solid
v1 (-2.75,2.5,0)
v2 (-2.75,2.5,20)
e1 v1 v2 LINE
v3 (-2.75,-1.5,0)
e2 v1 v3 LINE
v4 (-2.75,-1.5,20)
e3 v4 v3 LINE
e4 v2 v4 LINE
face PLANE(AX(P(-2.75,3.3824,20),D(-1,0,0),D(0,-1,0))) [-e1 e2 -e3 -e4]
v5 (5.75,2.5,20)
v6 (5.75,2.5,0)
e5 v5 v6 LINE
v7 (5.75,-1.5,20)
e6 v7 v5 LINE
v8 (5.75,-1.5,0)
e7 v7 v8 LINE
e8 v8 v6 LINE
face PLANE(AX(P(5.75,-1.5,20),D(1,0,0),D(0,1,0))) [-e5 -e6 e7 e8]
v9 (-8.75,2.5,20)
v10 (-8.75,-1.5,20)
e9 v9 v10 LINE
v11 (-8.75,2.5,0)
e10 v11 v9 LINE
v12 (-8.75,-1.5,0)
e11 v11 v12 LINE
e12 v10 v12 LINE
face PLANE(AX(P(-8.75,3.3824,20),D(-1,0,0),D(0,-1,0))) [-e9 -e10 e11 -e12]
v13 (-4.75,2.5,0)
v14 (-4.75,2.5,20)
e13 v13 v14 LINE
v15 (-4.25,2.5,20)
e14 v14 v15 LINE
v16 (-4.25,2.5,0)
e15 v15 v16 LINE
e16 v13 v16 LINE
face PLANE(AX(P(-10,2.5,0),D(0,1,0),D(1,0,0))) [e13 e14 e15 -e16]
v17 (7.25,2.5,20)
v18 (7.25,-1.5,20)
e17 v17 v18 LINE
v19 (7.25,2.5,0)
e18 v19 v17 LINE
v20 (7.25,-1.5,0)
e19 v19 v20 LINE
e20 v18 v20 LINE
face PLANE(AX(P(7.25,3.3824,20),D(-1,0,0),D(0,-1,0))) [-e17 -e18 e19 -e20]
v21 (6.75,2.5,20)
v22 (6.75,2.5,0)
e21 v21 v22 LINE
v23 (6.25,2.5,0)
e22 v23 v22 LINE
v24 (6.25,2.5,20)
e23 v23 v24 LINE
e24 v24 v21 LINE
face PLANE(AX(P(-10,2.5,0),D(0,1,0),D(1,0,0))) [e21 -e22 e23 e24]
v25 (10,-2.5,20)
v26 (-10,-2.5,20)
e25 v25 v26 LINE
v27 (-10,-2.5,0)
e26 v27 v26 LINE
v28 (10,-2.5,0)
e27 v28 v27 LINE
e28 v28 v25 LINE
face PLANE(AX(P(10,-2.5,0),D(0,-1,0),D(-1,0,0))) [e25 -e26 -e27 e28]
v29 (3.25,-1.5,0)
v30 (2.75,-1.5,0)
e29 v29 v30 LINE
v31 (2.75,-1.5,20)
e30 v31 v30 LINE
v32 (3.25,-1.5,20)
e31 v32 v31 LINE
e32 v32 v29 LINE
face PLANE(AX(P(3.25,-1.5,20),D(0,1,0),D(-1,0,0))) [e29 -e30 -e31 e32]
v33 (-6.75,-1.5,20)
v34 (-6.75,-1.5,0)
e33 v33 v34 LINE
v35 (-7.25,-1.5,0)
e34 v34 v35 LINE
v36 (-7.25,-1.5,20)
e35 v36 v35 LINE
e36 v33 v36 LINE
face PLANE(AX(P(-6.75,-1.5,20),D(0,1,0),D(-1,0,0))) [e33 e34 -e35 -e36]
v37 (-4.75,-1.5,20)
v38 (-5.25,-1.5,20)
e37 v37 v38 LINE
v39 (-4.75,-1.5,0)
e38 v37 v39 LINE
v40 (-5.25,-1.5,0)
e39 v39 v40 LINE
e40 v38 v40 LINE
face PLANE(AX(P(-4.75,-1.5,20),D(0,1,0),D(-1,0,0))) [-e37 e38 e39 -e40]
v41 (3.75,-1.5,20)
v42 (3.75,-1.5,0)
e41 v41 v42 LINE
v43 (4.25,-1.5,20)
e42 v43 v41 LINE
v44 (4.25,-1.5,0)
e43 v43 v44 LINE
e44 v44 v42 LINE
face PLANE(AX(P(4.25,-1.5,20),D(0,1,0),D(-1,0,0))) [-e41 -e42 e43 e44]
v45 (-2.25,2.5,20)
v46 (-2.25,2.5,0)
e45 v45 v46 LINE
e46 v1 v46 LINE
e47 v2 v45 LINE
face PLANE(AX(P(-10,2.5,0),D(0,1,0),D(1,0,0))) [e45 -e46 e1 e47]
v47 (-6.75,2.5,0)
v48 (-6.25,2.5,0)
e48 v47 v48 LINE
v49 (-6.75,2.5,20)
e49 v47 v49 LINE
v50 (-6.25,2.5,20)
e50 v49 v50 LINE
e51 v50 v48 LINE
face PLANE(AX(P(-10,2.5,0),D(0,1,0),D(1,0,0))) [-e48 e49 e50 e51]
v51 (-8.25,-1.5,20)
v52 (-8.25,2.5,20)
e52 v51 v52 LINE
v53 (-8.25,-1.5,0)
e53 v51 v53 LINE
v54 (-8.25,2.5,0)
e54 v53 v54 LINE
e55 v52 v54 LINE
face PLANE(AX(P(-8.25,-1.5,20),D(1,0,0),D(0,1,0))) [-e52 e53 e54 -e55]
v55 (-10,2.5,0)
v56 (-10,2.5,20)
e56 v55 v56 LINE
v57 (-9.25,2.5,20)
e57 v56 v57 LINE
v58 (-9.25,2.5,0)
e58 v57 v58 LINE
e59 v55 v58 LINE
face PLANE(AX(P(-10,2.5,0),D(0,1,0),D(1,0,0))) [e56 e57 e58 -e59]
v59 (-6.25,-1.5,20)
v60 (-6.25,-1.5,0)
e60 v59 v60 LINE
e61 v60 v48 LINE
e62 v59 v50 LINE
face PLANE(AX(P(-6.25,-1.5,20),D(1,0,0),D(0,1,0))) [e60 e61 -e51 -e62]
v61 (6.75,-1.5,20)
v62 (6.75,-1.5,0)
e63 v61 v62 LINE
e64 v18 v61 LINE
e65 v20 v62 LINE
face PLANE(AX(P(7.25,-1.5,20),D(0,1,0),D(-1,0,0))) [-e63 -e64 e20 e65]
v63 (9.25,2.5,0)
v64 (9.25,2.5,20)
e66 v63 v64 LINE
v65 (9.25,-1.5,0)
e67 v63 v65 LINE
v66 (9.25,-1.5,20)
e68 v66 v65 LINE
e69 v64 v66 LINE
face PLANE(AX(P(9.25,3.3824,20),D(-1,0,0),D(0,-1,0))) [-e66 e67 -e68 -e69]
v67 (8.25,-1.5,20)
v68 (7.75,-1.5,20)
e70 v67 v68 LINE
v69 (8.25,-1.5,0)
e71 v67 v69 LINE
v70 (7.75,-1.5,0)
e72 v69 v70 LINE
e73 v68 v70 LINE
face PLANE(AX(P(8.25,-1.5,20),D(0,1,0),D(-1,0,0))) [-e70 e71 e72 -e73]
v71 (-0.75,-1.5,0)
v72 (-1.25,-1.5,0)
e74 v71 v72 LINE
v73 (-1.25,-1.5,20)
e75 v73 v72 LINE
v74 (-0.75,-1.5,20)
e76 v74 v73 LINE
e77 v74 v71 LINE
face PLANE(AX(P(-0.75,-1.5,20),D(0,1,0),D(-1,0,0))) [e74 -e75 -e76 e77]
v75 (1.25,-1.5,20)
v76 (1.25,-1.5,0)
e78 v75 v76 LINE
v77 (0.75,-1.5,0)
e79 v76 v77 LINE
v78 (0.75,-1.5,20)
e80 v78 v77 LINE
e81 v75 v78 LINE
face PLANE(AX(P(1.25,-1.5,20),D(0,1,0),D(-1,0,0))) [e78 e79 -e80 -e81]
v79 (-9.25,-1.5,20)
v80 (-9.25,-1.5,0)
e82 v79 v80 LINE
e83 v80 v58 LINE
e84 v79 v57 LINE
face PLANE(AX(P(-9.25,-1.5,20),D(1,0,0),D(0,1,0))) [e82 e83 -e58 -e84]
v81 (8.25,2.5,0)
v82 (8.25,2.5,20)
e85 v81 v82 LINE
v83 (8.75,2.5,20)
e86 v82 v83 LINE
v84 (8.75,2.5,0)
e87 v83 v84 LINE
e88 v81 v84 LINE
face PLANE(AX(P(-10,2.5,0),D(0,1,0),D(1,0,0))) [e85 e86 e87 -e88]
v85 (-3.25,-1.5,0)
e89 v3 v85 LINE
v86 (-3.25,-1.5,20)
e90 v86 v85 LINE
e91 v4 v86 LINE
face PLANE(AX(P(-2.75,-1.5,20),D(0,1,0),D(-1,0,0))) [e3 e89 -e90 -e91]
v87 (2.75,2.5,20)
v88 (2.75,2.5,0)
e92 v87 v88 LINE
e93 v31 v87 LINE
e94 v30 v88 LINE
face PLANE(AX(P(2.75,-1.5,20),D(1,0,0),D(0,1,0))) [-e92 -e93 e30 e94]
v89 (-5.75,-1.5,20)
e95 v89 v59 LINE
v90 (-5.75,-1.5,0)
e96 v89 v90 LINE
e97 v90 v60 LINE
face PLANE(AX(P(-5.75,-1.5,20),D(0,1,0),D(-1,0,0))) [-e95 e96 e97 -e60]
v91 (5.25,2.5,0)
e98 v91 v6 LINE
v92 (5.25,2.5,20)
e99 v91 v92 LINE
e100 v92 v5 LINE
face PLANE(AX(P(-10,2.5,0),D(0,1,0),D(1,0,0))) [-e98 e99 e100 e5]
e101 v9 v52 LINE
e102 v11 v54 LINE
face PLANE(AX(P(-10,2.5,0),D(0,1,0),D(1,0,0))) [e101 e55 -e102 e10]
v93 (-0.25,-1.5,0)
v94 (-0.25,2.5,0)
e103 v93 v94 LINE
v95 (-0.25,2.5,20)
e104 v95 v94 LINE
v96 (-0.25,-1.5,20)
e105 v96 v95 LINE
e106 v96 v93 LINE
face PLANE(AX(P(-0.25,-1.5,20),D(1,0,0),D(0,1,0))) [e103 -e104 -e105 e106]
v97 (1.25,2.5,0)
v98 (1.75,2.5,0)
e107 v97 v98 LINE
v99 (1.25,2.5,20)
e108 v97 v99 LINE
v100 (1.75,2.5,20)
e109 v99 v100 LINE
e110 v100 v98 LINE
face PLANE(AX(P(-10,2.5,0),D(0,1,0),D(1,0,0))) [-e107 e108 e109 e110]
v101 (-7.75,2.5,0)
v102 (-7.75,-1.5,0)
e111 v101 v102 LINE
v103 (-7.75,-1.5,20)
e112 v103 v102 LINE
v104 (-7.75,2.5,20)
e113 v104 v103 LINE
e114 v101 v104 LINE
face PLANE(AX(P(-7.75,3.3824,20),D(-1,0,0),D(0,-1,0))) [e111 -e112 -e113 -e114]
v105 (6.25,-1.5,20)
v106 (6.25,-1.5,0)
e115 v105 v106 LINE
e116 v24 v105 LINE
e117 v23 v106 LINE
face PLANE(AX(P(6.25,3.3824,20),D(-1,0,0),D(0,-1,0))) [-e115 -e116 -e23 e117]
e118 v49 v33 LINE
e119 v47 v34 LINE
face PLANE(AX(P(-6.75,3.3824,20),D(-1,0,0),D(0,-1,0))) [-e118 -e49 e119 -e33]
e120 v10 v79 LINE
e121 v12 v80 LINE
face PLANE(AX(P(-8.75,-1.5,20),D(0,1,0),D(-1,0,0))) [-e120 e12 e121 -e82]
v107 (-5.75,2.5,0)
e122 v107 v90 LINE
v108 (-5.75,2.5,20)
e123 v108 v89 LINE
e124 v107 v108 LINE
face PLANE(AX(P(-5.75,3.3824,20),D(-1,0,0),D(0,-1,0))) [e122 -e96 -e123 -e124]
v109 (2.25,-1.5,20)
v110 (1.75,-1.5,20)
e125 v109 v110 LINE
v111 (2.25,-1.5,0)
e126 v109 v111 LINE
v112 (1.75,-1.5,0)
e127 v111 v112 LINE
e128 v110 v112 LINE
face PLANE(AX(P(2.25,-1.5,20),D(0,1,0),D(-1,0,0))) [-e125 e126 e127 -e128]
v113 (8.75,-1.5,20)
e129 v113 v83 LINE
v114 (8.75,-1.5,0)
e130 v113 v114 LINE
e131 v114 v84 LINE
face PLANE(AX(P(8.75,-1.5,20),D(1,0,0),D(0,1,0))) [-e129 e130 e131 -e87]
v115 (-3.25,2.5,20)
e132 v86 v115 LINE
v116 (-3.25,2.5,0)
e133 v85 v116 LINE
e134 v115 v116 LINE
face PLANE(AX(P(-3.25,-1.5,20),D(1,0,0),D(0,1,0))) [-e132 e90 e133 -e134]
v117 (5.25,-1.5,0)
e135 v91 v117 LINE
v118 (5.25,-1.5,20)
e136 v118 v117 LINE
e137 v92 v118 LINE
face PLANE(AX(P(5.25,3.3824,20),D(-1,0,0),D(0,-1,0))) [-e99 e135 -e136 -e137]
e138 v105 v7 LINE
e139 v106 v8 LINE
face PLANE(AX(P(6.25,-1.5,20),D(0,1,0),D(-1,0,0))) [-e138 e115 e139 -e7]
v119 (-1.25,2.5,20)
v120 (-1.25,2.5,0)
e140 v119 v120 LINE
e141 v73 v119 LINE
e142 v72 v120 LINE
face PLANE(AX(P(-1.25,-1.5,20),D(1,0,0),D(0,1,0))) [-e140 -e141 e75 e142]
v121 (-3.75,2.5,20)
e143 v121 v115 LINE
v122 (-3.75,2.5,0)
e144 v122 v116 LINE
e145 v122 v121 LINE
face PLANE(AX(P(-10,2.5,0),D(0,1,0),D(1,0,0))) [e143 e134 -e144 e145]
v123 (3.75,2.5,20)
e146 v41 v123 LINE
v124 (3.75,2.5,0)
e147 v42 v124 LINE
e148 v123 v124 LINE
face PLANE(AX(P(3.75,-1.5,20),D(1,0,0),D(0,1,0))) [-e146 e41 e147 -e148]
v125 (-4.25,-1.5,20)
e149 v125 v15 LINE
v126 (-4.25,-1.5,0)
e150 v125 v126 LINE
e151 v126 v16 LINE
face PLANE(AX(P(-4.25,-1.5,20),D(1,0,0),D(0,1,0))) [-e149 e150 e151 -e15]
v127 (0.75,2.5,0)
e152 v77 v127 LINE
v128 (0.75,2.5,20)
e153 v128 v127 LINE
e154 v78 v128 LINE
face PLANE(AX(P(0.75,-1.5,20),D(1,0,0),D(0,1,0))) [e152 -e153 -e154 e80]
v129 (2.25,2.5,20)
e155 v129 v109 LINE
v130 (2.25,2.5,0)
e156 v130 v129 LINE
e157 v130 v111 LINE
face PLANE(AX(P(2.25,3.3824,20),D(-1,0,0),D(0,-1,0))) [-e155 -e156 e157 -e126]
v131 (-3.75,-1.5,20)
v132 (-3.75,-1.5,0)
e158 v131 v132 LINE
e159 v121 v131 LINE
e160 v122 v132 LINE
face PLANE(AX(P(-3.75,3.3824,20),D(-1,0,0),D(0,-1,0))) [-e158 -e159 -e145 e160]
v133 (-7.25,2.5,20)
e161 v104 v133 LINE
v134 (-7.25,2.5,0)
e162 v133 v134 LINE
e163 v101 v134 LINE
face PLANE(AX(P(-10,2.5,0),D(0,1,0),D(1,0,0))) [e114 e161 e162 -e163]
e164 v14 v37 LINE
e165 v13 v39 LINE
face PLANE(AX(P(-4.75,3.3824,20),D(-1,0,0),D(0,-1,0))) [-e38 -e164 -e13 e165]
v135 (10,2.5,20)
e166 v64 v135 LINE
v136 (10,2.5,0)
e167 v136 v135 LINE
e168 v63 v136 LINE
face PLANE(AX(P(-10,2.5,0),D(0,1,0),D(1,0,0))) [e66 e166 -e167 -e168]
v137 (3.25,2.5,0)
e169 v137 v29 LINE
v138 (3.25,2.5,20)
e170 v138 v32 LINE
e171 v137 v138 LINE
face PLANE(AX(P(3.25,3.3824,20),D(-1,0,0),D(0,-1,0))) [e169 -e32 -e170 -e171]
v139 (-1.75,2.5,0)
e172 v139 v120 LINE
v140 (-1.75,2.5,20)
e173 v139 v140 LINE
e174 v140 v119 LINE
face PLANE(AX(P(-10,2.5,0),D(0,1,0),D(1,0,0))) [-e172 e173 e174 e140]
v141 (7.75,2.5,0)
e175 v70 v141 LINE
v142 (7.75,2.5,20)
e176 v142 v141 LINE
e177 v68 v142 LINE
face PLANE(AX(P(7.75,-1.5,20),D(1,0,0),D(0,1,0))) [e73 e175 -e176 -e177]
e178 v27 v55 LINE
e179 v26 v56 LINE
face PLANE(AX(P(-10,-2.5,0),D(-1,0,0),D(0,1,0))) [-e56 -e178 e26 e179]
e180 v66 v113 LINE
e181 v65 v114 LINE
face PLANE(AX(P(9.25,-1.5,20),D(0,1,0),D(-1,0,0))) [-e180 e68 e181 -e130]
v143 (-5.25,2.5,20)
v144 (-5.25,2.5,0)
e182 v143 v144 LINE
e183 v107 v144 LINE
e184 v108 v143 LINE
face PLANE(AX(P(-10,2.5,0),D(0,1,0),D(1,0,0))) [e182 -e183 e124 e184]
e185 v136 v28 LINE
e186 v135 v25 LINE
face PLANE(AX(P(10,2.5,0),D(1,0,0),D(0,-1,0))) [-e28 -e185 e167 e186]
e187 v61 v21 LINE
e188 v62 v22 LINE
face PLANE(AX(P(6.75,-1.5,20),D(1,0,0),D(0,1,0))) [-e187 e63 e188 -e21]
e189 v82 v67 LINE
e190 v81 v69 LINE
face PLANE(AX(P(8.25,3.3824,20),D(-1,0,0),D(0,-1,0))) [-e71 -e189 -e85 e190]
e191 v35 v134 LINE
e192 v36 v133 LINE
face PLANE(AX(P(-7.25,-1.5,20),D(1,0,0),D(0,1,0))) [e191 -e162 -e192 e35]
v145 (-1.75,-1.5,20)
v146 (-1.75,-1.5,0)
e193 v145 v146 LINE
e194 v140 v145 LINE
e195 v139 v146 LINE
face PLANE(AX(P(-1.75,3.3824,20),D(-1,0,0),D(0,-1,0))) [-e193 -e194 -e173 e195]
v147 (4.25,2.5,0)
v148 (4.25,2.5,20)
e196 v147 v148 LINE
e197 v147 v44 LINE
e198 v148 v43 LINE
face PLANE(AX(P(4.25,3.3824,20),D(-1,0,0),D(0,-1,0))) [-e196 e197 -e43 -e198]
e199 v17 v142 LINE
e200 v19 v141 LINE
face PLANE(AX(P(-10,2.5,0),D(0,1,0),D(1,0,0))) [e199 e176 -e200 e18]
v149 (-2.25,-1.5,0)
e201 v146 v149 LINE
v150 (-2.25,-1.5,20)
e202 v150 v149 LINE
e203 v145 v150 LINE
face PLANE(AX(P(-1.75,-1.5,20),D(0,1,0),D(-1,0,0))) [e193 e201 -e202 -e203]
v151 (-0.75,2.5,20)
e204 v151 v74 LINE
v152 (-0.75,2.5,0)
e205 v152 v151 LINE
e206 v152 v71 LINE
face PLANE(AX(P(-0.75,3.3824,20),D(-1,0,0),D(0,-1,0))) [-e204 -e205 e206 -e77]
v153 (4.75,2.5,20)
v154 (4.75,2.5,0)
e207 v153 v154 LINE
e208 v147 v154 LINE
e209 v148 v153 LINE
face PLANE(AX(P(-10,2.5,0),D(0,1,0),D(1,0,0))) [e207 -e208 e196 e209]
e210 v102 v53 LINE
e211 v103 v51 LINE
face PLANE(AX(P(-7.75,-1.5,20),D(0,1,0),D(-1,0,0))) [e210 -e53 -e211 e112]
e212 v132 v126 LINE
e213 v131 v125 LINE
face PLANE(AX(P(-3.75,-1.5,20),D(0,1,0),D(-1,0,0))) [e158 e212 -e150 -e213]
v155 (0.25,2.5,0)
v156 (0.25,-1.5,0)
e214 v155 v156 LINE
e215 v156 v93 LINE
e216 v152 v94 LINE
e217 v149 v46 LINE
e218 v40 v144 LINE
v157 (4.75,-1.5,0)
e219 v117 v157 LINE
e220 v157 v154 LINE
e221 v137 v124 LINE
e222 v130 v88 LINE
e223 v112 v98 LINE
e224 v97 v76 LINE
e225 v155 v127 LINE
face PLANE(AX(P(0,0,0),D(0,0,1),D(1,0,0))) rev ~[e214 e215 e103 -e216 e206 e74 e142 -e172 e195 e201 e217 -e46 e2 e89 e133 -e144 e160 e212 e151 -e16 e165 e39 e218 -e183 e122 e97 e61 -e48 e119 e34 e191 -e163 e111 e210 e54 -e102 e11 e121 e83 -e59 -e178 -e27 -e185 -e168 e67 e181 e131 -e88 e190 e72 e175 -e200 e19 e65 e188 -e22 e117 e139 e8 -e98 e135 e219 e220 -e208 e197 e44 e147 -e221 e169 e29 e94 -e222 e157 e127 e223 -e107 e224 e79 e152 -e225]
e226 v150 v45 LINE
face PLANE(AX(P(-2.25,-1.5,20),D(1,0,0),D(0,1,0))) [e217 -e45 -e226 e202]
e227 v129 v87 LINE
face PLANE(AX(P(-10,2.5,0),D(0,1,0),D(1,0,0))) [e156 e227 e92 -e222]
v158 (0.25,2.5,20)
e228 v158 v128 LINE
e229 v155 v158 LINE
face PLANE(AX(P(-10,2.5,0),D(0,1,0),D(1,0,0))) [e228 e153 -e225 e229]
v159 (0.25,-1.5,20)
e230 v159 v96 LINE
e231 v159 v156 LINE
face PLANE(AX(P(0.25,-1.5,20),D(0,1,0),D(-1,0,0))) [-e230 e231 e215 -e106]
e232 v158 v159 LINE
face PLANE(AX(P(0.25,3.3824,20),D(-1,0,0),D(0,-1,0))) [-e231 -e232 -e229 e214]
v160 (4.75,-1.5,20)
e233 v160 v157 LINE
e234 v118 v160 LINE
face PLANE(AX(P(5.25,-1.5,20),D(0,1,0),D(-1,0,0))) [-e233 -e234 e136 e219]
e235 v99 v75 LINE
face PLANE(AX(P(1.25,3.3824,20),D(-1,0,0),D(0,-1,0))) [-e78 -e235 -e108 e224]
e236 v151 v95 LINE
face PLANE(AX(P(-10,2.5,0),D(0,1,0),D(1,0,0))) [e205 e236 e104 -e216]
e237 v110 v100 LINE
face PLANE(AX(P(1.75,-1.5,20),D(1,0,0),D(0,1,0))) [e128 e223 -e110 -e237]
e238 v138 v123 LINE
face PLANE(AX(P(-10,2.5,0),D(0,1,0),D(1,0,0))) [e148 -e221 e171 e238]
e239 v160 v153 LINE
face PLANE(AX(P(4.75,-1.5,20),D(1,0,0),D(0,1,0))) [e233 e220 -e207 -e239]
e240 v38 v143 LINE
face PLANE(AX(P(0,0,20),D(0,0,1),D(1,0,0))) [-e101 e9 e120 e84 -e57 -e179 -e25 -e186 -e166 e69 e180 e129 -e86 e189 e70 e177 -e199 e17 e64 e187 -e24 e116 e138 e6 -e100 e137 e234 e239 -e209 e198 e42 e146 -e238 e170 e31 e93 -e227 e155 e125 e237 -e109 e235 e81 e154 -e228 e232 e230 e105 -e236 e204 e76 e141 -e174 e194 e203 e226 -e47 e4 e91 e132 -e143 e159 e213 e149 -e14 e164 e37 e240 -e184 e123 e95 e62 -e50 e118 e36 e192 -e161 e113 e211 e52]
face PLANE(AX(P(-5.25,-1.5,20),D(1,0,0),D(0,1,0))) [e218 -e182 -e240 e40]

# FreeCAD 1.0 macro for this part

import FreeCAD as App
import Part
import Sketcher

V = App.Vector
Q = App.Units.Quantity


def add_polygon(sketch, points):
    """Adds a closed chain of lines whose ends are joined by coincident constraints."""
    first, n = sketch.GeometryCount, len(points)
    for a, b in zip(points, points[1:] + points[:1]):
        sketch.addGeometry(Part.LineSegment(App.Vector(*a, 0), App.Vector(*b, 0)), False)
    for i in range(n):
        sketch.addConstraint(Sketcher.Constraint("Coincident", first + i, 2, first + (i + 1) % n, 1))

doc = App.newDocument("Part")
body = doc.addObject("PartDesign::Body", "Body")

# Sketch on XY plane
sketch1 = body.newObject("Sketcher::SketchObject", "Sketch")
sketch1.AttachmentSupport = (doc.getObject("XY_Plane"), [""])
sketch1.MapMode = "FlatFace"
add_polygon(sketch1, [(10, 2.5), (-10, 2.5), (-10, -2.5), (10, -2.5)])  # lines 0-3
sketch1.addConstraint([
    Sketcher.Constraint("Horizontal", 0),
    Sketcher.Constraint("Vertical", 1),
    Sketcher.Constraint("Horizontal", 2),
    Sketcher.Constraint("Vertical", 3),
    Sketcher.Constraint("Symmetric", 0, 2, 2, 2, -1, 1),
    Sketcher.Constraint("DistanceX", 0, 2, 0, 1, Q("20 mm")),
    Sketcher.Constraint("DistanceY", 1, 2, 1, 1, Q("5 mm")),
])
pad1 = body.newObject("PartDesign::Pad", "Pad")
pad1.Profile = sketch1
pad1.Length = 20

# Sketch on XY plane
sketch2 = body.newObject("Sketcher::SketchObject", "Sketch001")
sketch2.AttachmentSupport = (doc.getObject("XY_Plane"), [""])
sketch2.MapMode = "FlatFace"
sketch2.AttachmentOffset = App.Placement(V(0, 0, 20), App.Rotation())
add_polygon(sketch2, [(0.25, 3.3824), (-0.25, 3.3824), (-0.25, -1.5), (0.25, -1.5)])  # lines 0-3
add_polygon(sketch2, [(1.25, 3.3824), (0.75, 3.3824), (0.75, -1.5), (1.25, -1.5)])  # lines 4-7
add_polygon(sketch2, [(2.25, 3.3824), (1.75, 3.3824), (1.75, -1.5), (2.25, -1.5)])  # lines 8-11
add_polygon(sketch2, [(3.25, 3.3824), (2.75, 3.3824), (2.75, -1.5), (3.25, -1.5)])  # lines 12-15
add_polygon(sketch2, [(4.25, 3.3824), (3.75, 3.3824), (3.75, -1.5), (4.25, -1.5)])  # lines 16-19
add_polygon(sketch2, [(5.25, 3.3824), (4.75, 3.3824), (4.75, -1.5), (5.25, -1.5)])  # lines 20-23
add_polygon(sketch2, [(6.25, 3.3824), (5.75, 3.3824), (5.75, -1.5), (6.25, -1.5)])  # lines 24-27
add_polygon(sketch2, [(7.25, 3.3824), (6.75, 3.3824), (6.75, -1.5), (7.25, -1.5)])  # lines 28-31
add_polygon(sketch2, [(8.25, 3.3824), (7.75, 3.3824), (7.75, -1.5), (8.25, -1.5)])  # lines 32-35
add_polygon(sketch2, [(9.25, 3.3824), (8.75, 3.3824), (8.75, -1.5), (9.25, -1.5)])  # lines 36-39
add_polygon(sketch2, [(-0.75, 3.3824), (-1.25, 3.3824), (-1.25, -1.5), (-0.75, -1.5)])  # lines 40-43
add_polygon(sketch2, [(-1.75, 3.3824), (-2.25, 3.3824), (-2.25, -1.5), (-1.75, -1.5)])  # lines 44-47
add_polygon(sketch2, [(-2.75, 3.3824), (-3.25, 3.3824), (-3.25, -1.5), (-2.75, -1.5)])  # lines 48-51
add_polygon(sketch2, [(-3.75, 3.3824), (-4.25, 3.3824), (-4.25, -1.5), (-3.75, -1.5)])  # lines 52-55
add_polygon(sketch2, [(-4.75, 3.3824), (-5.25, 3.3824), (-5.25, -1.5), (-4.75, -1.5)])  # lines 56-59
add_polygon(sketch2, [(-5.75, 3.3824), (-6.25, 3.3824), (-6.25, -1.5), (-5.75, -1.5)])  # lines 60-63
add_polygon(sketch2, [(-6.75, 3.3824), (-7.25, 3.3824), (-7.25, -1.5), (-6.75, -1.5)])  # lines 64-67
add_polygon(sketch2, [(-7.75, 3.3824), (-8.25, 3.3824), (-8.25, -1.5), (-7.75, -1.5)])  # lines 68-71
add_polygon(sketch2, [(-8.75, 3.3824), (-9.25, 3.3824), (-9.25, -1.5), (-8.75, -1.5)])  # lines 72-75
sketch2.addConstraint([
    Sketcher.Constraint("Horizontal", 0),
    Sketcher.Constraint("Vertical", 1),
    Sketcher.Constraint("Horizontal", 2),
    Sketcher.Constraint("Vertical", 3),
    Sketcher.Constraint("Horizontal", 4),
    Sketcher.Constraint("Vertical", 5),
    Sketcher.Constraint("Horizontal", 6),
    Sketcher.Constraint("Vertical", 7),
    Sketcher.Constraint("Horizontal", 8),
    Sketcher.Constraint("Vertical", 9),
    Sketcher.Constraint("Horizontal", 10),
    Sketcher.Constraint("Vertical", 11),
    Sketcher.Constraint("Horizontal", 12),
    Sketcher.Constraint("Vertical", 13),
    Sketcher.Constraint("Horizontal", 14),
    Sketcher.Constraint("Vertical", 15),
    Sketcher.Constraint("Horizontal", 16),
    Sketcher.Constraint("Vertical", 17),
    Sketcher.Constraint("Horizontal", 18),
    Sketcher.Constraint("Vertical", 19),
    Sketcher.Constraint("Horizontal", 20),
    Sketcher.Constraint("Vertical", 21),
    Sketcher.Constraint("Horizontal", 22),
    Sketcher.Constraint("Vertical", 23),
    Sketcher.Constraint("Horizontal", 24),
    Sketcher.Constraint("Vertical", 25),
    Sketcher.Constraint("Horizontal", 26),
    Sketcher.Constraint("Vertical", 27),
    Sketcher.Constraint("Horizontal", 28),
    Sketcher.Constraint("Vertical", 29),
    Sketcher.Constraint("Horizontal", 30),
    Sketcher.Constraint("Vertical", 31),
    Sketcher.Constraint("Horizontal", 32),
    Sketcher.Constraint("Vertical", 33),
    Sketcher.Constraint("Horizontal", 34),
    Sketcher.Constraint("Vertical", 35),
    Sketcher.Constraint("Horizontal", 36),
    Sketcher.Constraint("Vertical", 37),
    Sketcher.Constraint("Horizontal", 38),
    Sketcher.Constraint("Vertical", 39),
    Sketcher.Constraint("Horizontal", 40),
    Sketcher.Constraint("Vertical", 41),
    Sketcher.Constraint("Horizontal", 42),
    Sketcher.Constraint("Vertical", 43),
    Sketcher.Constraint("Horizontal", 44),
    Sketcher.Constraint("Vertical", 45),
    Sketcher.Constraint("Horizontal", 46),
    Sketcher.Constraint("Vertical", 47),
    Sketcher.Constraint("Horizontal", 48),
    Sketcher.Constraint("Vertical", 49),
    Sketcher.Constraint("Horizontal", 50),
    Sketcher.Constraint("Vertical", 51),
    Sketcher.Constraint("Horizontal", 52),
    Sketcher.Constraint("Vertical", 53),
    Sketcher.Constraint("Horizontal", 54),
    Sketcher.Constraint("Vertical", 55),
    Sketcher.Constraint("Horizontal", 56),
    Sketcher.Constraint("Vertical", 57),
    Sketcher.Constraint("Horizontal", 58),
    Sketcher.Constraint("Vertical", 59),
    Sketcher.Constraint("Horizontal", 60),
    Sketcher.Constraint("Vertical", 61),
    Sketcher.Constraint("Horizontal", 62),
    Sketcher.Constraint("Vertical", 63),
    Sketcher.Constraint("Horizontal", 64),
    Sketcher.Constraint("Vertical", 65),
    Sketcher.Constraint("Horizontal", 66),
    Sketcher.Constraint("Vertical", 67),
    Sketcher.Constraint("Horizontal", 68),
    Sketcher.Constraint("Vertical", 69),
    Sketcher.Constraint("Horizontal", 70),
    Sketcher.Constraint("Vertical", 71),
    Sketcher.Constraint("Horizontal", 72),
    Sketcher.Constraint("Vertical", 73),
    Sketcher.Constraint("Horizontal", 74),
    Sketcher.Constraint("Vertical", 75),
    Sketcher.Constraint("Symmetric", 7, 2, 40, 2, -2),
    Sketcher.Constraint("Symmetric", 5, 2, 42, 2, -2),
    Sketcher.Constraint("Symmetric", 11, 2, 44, 2, -2),
    Sketcher.Constraint("Symmetric", 9, 2, 46, 2, -2),
    Sketcher.Constraint("Symmetric", 15, 2, 48, 2, -2),
    Sketcher.Constraint("Symmetric", 13, 2, 50, 2, -2),
    Sketcher.Constraint("Symmetric", 19, 2, 52, 2, -2),
    Sketcher.Constraint("Symmetric", 17, 2, 54, 2, -2),
    Sketcher.Constraint("Symmetric", 23, 2, 56, 2, -2),
    Sketcher.Constraint("Symmetric", 21, 2, 58, 2, -2),
    Sketcher.Constraint("Symmetric", 27, 2, 60, 2, -2),
    Sketcher.Constraint("Symmetric", 25, 2, 62, 2, -2),
    Sketcher.Constraint("Symmetric", 31, 2, 64, 2, -2),
    Sketcher.Constraint("Symmetric", 29, 2, 66, 2, -2),
    Sketcher.Constraint("Symmetric", 35, 2, 68, 2, -2),
    Sketcher.Constraint("Symmetric", 33, 2, 70, 2, -2),
    Sketcher.Constraint("Symmetric", 39, 2, 72, 2, -2),
    Sketcher.Constraint("Symmetric", 37, 2, 74, 2, -2),
    Sketcher.Constraint("Horizontal", 3, 2, 4, 2),
    Sketcher.Constraint("Horizontal", 2, 2, 5, 2),
    Sketcher.Constraint("Horizontal", 7, 2, 8, 2),
    Sketcher.Constraint("Horizontal", 6, 2, 9, 2),
    Sketcher.Constraint("Horizontal", 11, 2, 12, 2),
    Sketcher.Constraint("Horizontal", 10, 2, 13, 2),
    Sketcher.Constraint("Horizontal", 15, 2, 16, 2),
    Sketcher.Constraint("Horizontal", 14, 2, 17, 2),
    Sketcher.Constraint("Horizontal", 19, 2, 20, 2),
    Sketcher.Constraint("Horizontal", 18, 2, 21, 2),
    Sketcher.Constraint("Horizontal", 23, 2, 24, 2),
    Sketcher.Constraint("Horizontal", 22, 2, 25, 2),
    Sketcher.Constraint("Horizontal", 27, 2, 28, 2),
    Sketcher.Constraint("Horizontal", 26, 2, 29, 2),
    Sketcher.Constraint("Horizontal", 31, 2, 32, 2),
    Sketcher.Constraint("Horizontal", 30, 2, 33, 2),
    Sketcher.Constraint("Horizontal", 35, 2, 36, 2),
    Sketcher.Constraint("Horizontal", 34, 2, 37, 2),
    Sketcher.Constraint("Equal", 2, 4),
    Sketcher.Constraint("Equal", 6, 8),
    Sketcher.Constraint("Equal", 10, 12),
    Sketcher.Constraint("Equal", 14, 16),
    Sketcher.Constraint("Equal", 18, 20),
    Sketcher.Constraint("Equal", 22, 24),
    Sketcher.Constraint("Equal", 26, 28),
    Sketcher.Constraint("Equal", 30, 32),
    Sketcher.Constraint("Equal", 34, 36),
    Sketcher.Constraint("DistanceX", 0, 2, 0, 1, Q("0.5 mm")),
    Sketcher.Constraint("DistanceY", 1, 2, -1, 1, Q("1.5 mm")),
    Sketcher.Constraint("DistanceX", 0, 2, -1, 1, Q("0.25 mm")),
    Sketcher.Constraint("DistanceX", -1, 1, 4, 2, Q("0.75 mm")),
    Sketcher.Constraint("DistanceX", -1, 1, 8, 2, Q("1.75 mm")),
    Sketcher.Constraint("DistanceX", -1, 1, 12, 2, Q("2.75 mm")),
    Sketcher.Constraint("DistanceX", -1, 1, 16, 2, Q("3.75 mm")),
    Sketcher.Constraint("DistanceX", -1, 1, 20, 2, Q("4.75 mm")),
    Sketcher.Constraint("DistanceX", -1, 1, 24, 2, Q("5.75 mm")),
    Sketcher.Constraint("DistanceX", -1, 1, 28, 2, Q("6.75 mm")),
    Sketcher.Constraint("DistanceX", -1, 1, 32, 2, Q("7.75 mm")),
    Sketcher.Constraint("DistanceX", -1, 1, 36, 2, Q("8.75 mm")),
    Sketcher.Constraint("DistanceY", 1, 2, 1, 1, Q("4.8824 mm")),
])
pocket1 = body.newObject("PartDesign::Pocket", "Pocket")
pocket1.Profile = sketch2
pocket1.Length = 20

doc.recompute()
